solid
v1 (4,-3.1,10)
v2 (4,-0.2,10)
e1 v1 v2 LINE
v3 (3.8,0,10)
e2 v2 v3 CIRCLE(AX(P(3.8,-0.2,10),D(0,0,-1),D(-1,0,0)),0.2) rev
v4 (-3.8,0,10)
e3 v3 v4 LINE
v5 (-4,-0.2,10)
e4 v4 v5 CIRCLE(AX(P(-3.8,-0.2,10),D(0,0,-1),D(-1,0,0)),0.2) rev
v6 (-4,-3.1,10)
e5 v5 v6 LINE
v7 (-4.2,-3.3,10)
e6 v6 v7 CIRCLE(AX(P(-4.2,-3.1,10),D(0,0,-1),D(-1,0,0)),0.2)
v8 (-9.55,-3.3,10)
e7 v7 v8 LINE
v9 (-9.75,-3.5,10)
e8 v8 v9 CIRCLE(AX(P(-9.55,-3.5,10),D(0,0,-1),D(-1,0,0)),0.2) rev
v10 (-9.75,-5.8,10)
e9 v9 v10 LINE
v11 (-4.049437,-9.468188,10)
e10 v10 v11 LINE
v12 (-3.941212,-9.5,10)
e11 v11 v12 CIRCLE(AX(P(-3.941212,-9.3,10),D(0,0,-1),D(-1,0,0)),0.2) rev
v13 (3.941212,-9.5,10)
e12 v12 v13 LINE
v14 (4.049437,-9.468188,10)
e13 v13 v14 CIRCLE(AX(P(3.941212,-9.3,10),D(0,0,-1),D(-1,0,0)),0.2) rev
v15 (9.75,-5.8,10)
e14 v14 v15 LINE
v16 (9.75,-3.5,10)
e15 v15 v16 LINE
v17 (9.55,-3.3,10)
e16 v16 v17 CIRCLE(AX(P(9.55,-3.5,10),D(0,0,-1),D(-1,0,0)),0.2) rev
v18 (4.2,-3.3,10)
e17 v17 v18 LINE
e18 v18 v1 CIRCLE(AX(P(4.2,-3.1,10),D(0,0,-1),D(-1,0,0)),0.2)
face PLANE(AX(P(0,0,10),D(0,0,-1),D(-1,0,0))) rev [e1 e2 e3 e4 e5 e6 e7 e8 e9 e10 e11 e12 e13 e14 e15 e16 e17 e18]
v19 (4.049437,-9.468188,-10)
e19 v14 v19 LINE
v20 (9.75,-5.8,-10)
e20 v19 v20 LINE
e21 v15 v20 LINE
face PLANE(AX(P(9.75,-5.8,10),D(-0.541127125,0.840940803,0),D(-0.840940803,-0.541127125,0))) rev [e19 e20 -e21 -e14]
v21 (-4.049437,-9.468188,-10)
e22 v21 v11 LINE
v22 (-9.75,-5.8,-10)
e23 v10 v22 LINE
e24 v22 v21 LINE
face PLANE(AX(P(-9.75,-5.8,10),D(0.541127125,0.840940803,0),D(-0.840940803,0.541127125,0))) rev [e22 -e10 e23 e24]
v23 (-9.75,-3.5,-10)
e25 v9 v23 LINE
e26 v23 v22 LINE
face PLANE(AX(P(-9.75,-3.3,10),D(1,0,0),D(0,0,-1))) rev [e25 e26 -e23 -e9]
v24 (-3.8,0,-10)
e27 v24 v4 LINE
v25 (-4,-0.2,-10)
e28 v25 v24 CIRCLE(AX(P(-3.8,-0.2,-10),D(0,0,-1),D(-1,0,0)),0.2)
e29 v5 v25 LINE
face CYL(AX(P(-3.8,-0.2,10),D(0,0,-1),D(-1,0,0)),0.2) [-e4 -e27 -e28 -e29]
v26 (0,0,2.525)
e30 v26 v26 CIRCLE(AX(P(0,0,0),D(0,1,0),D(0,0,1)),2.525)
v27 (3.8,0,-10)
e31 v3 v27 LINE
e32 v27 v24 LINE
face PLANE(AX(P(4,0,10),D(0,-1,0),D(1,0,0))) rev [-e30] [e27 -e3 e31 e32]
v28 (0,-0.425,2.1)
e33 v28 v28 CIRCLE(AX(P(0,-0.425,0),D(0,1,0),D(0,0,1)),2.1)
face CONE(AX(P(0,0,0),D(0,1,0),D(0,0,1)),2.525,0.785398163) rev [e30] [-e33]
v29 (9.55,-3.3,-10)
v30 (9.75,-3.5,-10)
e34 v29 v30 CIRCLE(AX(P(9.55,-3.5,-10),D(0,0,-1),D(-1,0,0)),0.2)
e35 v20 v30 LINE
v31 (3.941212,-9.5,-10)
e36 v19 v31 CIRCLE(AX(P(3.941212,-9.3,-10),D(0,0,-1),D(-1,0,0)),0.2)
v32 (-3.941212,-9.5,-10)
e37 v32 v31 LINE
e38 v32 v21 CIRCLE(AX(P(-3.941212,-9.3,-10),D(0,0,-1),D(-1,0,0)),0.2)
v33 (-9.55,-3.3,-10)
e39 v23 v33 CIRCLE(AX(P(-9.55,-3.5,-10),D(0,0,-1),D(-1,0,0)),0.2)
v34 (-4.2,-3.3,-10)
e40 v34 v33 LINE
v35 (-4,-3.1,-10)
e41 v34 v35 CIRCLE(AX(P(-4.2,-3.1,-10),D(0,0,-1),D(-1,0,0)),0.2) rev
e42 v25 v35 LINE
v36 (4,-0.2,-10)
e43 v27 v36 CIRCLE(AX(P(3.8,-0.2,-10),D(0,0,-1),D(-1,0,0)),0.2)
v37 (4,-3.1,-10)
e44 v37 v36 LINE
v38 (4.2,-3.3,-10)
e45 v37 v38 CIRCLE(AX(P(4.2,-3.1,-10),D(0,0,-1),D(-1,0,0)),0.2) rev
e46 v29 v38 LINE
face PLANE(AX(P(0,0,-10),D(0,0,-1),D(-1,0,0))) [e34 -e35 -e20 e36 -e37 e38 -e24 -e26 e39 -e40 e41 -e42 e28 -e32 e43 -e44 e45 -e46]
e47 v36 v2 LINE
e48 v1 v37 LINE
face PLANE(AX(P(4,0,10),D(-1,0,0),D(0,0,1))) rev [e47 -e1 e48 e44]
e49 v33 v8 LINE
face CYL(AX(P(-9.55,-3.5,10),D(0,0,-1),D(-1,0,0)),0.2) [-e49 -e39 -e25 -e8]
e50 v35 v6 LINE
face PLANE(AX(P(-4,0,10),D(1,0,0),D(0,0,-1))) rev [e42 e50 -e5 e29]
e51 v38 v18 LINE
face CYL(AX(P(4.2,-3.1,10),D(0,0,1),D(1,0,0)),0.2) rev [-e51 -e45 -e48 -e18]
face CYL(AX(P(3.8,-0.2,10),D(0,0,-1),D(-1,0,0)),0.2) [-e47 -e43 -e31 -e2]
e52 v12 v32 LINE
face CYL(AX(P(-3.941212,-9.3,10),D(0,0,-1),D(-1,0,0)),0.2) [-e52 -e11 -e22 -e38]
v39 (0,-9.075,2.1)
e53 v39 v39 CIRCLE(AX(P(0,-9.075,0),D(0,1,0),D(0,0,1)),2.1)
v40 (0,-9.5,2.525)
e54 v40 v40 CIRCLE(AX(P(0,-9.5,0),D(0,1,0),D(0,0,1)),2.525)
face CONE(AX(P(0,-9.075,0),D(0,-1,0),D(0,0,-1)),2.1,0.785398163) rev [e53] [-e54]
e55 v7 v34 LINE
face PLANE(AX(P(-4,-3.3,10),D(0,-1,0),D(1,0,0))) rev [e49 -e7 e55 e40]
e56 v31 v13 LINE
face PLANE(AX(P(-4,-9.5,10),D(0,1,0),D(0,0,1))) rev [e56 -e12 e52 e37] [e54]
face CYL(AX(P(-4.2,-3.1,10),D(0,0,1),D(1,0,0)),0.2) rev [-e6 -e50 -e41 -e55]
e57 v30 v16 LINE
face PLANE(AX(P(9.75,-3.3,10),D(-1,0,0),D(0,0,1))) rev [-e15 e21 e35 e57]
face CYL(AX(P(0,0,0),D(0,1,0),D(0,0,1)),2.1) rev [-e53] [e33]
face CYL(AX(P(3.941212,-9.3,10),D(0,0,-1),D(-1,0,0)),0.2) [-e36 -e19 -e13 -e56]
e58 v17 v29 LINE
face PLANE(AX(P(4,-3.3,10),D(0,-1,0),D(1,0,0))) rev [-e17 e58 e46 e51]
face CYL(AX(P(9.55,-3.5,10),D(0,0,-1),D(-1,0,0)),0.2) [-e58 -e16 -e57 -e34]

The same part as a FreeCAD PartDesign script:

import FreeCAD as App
import Part
import Sketcher


def edges_at(feature, points):
    """Names of the edges that pass closest to the given points."""
    edges = feature.Shape.Edges
    near = lambda p: min(range(len(edges)), key=lambda i: edges[i].distToShape(Part.Vertex(*p))[0])
    return sorted({f"Edge{near(p) + 1}" for p in points})


def add_polygon(sketch, points):
    """Adds a closed chain of lines whose ends are joined by coincident constraints."""
    first, n = sketch.GeometryCount, len(points)
    for a, b in zip(points, points[1:] + points[:1]):
        sketch.addGeometry(Part.LineSegment(App.Vector(*a, 0), App.Vector(*b, 0)), False)
    for i in range(n):
        sketch.addConstraint(Sketcher.Constraint("Coincident", first + i, 2, first + (i + 1) % n, 1))

doc = App.newDocument("Part")
body = doc.addObject("PartDesign::Body", "Body")

# Sketch on XY plane
sketch1 = body.newObject("Sketcher::SketchObject", "Sketch")
sketch1.AttachmentSupport = (doc.getObject("XY_Plane"), [""])
sketch1.MapMode = "FlatFace"
add_polygon(sketch1, [(4, 0), (-4, 0), (-4, -3.3), (-9.8, -3.3), (-9.8, -5.8), (-4, -9.5), (4, -9.5), (9.8, -5.8), (9.8, -3.3), (4, -3.3)])  # lines 0-9
sketch1.addConstraint(Sketcher.Constraint("Horizontal", 0))
sketch1.addConstraint(Sketcher.Constraint("Vertical", 1))
sketch1.addConstraint(Sketcher.Constraint("Horizontal", 2))
sketch1.addConstraint(Sketcher.Constraint("Vertical", 3))
sketch1.addConstraint(Sketcher.Constraint("Horizontal", 5))
sketch1.addConstraint(Sketcher.Constraint("Vertical", 7))
sketch1.addConstraint(Sketcher.Constraint("Horizontal", 8))
sketch1.addConstraint(Sketcher.Constraint("Vertical", 9))
sketch1.addConstraint(Sketcher.Constraint("Symmetric", 0, 2, 9, 2, -1, 1))
sketch1.addConstraint(Sketcher.Constraint("Symmetric", 3, 2, 6, 2, -2))
sketch1.addConstraint(Sketcher.Constraint("Horizontal", 2, 2, 7, 2))
sketch1.addConstraint(Sketcher.Constraint("Vertical", 1, 2, 4, 2))
sketch1.addConstraint(Sketcher.Constraint("Vertical", 5, 2, 8, 2))
sketch1.addConstraint(Sketcher.Constraint("DistanceX", 0, 2, 0, 1, 8.0))
sketch1.addConstraint(Sketcher.Constraint("DistanceY", 1, 2, 1, 1, 3.3))
sketch1.addConstraint(Sketcher.Constraint("DistanceY", 3, 2, 3, 1, 2.5))
sketch1.addConstraint(Sketcher.Constraint("DistanceX", 2, 2, 2, 1, 5.75))
sketch1.addConstraint(Sketcher.Constraint("DistanceY", 4, 2, -1, 1, 9.5))
pad1 = body.newObject("PartDesign::Pad", "Pad")
pad1.Profile = sketch1
pad1.Length = 20
pad1.Midplane = True

# Sketch on YZ plane
sketch2 = body.newObject("Sketcher::SketchObject", "Sketch001")
sketch2.AttachmentSupport = (doc.getObject("YZ_Plane"), [""])
sketch2.MapMode = "FlatFace"
add_polygon(sketch2, [(-9.5, 0), (0, 0), (0, 2.5), (-0.4, 2.1), (-9.1, 2.1), (-9.5, 2.5)])  # lines 0-5
sketch2.addConstraint(Sketcher.Constraint("Horizontal", 0))
sketch2.addConstraint(Sketcher.Constraint("Vertical", 1))
sketch2.addConstraint(Sketcher.Constraint("Horizontal", 3))
sketch2.addConstraint(Sketcher.Constraint("Vertical", 5))
sketch2.addConstraint(Sketcher.Constraint("Coincident", 0, 2, -1, 1))
sketch2.addConstraint(Sketcher.Constraint("Perpendicular", 2, 4))
sketch2.addConstraint(Sketcher.Constraint("Horizontal", 1, 2, 4, 2))
sketch2.addConstraint(Sketcher.Constraint("Equal", 2, 4))
sketch2.addConstraint(Sketcher.Constraint("DistanceX", 0, 1, 0, 2, 9.5))
sketch2.addConstraint(Sketcher.Constraint("DistanceX", 3, 2, 3, 1, 8.65))
sketch2.addConstraint(Sketcher.Constraint("DistanceY", -1, 1, 2, 2, 2.1))
groove = body.newObject("PartDesign::Groove", "Groove")
groove.Profile = sketch2
groove.ReferenceAxis = (sketch2, ["H_Axis"])
groove.Angle = 360
doc.recompute()

fillet = body.newObject("PartDesign::Fillet", "Fillet")
fillet.Base = (groove, edges_at(groove, [
    (-4, 0, 0),
    (4, 0, 0),
    (4, -3.3, 0),
    (9.75, -3.3, 0),
    (4, -9.5, 0),
    (-4, -9.5, 0),
    (-9.75, -3.3, 0),
    (-4, -3.3, 0),
]))
fillet.Radius = 0.2

doc.recompute()
